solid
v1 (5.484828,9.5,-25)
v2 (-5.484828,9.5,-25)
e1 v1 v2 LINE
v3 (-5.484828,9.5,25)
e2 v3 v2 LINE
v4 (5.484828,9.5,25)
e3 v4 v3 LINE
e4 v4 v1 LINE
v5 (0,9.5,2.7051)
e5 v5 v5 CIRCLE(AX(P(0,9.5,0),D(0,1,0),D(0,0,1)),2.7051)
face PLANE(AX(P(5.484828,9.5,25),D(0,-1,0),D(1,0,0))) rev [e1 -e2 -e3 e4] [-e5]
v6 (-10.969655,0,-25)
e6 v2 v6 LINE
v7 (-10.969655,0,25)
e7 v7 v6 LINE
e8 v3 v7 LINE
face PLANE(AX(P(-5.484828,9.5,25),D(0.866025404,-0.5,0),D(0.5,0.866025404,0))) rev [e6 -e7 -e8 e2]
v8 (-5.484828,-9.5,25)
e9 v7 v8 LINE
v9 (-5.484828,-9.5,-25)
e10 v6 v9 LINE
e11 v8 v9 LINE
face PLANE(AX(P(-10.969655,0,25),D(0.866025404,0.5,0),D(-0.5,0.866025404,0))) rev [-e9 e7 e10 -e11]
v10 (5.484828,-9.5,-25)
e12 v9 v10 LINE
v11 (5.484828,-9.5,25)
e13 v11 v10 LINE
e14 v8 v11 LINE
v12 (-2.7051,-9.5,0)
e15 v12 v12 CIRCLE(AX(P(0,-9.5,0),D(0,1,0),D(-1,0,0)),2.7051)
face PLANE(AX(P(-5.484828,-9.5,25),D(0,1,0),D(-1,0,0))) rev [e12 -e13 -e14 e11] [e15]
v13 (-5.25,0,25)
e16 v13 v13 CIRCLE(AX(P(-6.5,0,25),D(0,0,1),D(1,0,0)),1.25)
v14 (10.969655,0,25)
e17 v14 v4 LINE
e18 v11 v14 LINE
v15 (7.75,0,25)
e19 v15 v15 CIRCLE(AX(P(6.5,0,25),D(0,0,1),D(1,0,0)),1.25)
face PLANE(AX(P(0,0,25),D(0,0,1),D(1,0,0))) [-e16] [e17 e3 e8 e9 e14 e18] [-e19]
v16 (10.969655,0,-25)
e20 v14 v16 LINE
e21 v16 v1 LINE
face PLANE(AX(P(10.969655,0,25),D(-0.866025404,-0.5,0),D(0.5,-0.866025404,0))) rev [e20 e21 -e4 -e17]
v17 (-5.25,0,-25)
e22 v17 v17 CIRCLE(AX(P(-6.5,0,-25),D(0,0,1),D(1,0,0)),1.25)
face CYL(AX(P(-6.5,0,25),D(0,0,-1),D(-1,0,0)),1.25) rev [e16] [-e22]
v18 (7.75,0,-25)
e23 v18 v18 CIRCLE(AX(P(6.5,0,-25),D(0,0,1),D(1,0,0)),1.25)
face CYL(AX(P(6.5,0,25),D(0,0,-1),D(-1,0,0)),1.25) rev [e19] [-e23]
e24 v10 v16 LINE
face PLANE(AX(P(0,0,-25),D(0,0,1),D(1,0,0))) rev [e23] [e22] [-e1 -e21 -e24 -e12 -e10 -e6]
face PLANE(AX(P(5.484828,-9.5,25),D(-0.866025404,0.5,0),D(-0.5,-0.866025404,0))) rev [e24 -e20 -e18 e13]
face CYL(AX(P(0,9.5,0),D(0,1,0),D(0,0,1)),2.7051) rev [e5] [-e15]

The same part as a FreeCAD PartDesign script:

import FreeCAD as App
import Part
import Sketcher

V = App.Vector
Q = App.Units.Quantity


def add_polygon(sketch, points):
    """Adds a closed chain of lines whose ends are joined by coincident constraints."""
    first, n = sketch.GeometryCount, len(points)
    for a, b in zip(points, points[1:] + points[:1]):
        sketch.addGeometry(Part.LineSegment(App.Vector(*a, 0), App.Vector(*b, 0)), False)
    for i in range(n):
        sketch.addConstraint(Sketcher.Constraint("Coincident", first + i, 2, first + (i + 1) % n, 1))

doc = App.newDocument("Part")
body = doc.addObject("PartDesign::Body", "Body")

sketch1 = body.newObject("Sketcher::SketchObject", "Sketch")
sketch1.AttachmentSupport = (doc.getObject("XY_Plane"), [""])
sketch1.MapMode = "FlatFace"
add_polygon(sketch1, [(-5.484828, -9.5), (5.484828, -9.5), (10.969655, 0), (5.484828, 9.5), (-5.484828, 9.5), (-10.969655, 0)])
sketch1.addGeometry(Part.Circle(V(-6.5, 0, 0), V(0, 0, 1), 1.25), False)
sketch1.addGeometry(Part.Circle(V(6.5, 0, 0), V(0, 0, 1), 1.25), False)
sketch1.addConstraint([
    Sketcher.Constraint("Horizontal", 0),
    Sketcher.Constraint("Horizontal", 3),
    Sketcher.Constraint("Equal", 6, 7),
    Sketcher.Constraint("Symmetric", 6, 3, 7, 3, -1, 1),
    Sketcher.Constraint("Symmetric", 0, 2, 3, 2, -1, 1),
    Sketcher.Constraint("Symmetric", 1, 2, 4, 2, -1, 1),
    Sketcher.Constraint("PointOnObject", 6, 3, -1),
    Sketcher.Constraint("PointOnObject", 1, 2, -1),
    Sketcher.Constraint("Parallel", 2, 5),
    Sketcher.Constraint("Vertical", 0, 2, 2, 2),
    Sketcher.Constraint("Diameter", 6, Q("2.5 mm")),
    Sketcher.Constraint("Angle", 1, Q("60 deg")),
    Sketcher.Constraint("DistanceX", 6, 3, 7, 3, Q("13 mm")),
    Sketcher.Constraint("DistanceY", 0, 2, 2, 2, Q("19 mm")),
    Sketcher.Constraint("DistanceX", 0, 1, 0, 2, Q("10.969655 mm")),
])
pad1 = body.newObject("PartDesign::Pad", "Pad")
pad1.Profile = sketch1
pad1.Length = 50
pad1.Midplane = True

sketch2 = body.newObject("Sketcher::SketchObject", "Sketch001")
sketch2.AttachmentSupport = (doc.getObject("XZ_Plane"), [""])
sketch2.MapMode = "FlatFace"
sketch2.AttachmentOffset = App.Placement(V(0, 0, -9.5), App.Rotation())
sketch2.addGeometry(Part.Circle(V(0, 0, 0), V(0, 0, 1), 2.7051), False)
sketch2.addConstraint([
    Sketcher.Constraint("Coincident", 0, 3, -1, 1),
    Sketcher.Constraint("Diameter", 0, Q("5.4102 mm")),
])
doc.recompute()
hole = body.newObject("PartDesign::Hole", "Hole")
hole.Profile = sketch2
hole.ThreadType = "None"
hole.Diameter = 5.4102
hole.DepthType = "Dimension"
hole.Depth = 19
hole.DrillPoint = "Flat"
hole.Reversed = True

doc.recompute()
